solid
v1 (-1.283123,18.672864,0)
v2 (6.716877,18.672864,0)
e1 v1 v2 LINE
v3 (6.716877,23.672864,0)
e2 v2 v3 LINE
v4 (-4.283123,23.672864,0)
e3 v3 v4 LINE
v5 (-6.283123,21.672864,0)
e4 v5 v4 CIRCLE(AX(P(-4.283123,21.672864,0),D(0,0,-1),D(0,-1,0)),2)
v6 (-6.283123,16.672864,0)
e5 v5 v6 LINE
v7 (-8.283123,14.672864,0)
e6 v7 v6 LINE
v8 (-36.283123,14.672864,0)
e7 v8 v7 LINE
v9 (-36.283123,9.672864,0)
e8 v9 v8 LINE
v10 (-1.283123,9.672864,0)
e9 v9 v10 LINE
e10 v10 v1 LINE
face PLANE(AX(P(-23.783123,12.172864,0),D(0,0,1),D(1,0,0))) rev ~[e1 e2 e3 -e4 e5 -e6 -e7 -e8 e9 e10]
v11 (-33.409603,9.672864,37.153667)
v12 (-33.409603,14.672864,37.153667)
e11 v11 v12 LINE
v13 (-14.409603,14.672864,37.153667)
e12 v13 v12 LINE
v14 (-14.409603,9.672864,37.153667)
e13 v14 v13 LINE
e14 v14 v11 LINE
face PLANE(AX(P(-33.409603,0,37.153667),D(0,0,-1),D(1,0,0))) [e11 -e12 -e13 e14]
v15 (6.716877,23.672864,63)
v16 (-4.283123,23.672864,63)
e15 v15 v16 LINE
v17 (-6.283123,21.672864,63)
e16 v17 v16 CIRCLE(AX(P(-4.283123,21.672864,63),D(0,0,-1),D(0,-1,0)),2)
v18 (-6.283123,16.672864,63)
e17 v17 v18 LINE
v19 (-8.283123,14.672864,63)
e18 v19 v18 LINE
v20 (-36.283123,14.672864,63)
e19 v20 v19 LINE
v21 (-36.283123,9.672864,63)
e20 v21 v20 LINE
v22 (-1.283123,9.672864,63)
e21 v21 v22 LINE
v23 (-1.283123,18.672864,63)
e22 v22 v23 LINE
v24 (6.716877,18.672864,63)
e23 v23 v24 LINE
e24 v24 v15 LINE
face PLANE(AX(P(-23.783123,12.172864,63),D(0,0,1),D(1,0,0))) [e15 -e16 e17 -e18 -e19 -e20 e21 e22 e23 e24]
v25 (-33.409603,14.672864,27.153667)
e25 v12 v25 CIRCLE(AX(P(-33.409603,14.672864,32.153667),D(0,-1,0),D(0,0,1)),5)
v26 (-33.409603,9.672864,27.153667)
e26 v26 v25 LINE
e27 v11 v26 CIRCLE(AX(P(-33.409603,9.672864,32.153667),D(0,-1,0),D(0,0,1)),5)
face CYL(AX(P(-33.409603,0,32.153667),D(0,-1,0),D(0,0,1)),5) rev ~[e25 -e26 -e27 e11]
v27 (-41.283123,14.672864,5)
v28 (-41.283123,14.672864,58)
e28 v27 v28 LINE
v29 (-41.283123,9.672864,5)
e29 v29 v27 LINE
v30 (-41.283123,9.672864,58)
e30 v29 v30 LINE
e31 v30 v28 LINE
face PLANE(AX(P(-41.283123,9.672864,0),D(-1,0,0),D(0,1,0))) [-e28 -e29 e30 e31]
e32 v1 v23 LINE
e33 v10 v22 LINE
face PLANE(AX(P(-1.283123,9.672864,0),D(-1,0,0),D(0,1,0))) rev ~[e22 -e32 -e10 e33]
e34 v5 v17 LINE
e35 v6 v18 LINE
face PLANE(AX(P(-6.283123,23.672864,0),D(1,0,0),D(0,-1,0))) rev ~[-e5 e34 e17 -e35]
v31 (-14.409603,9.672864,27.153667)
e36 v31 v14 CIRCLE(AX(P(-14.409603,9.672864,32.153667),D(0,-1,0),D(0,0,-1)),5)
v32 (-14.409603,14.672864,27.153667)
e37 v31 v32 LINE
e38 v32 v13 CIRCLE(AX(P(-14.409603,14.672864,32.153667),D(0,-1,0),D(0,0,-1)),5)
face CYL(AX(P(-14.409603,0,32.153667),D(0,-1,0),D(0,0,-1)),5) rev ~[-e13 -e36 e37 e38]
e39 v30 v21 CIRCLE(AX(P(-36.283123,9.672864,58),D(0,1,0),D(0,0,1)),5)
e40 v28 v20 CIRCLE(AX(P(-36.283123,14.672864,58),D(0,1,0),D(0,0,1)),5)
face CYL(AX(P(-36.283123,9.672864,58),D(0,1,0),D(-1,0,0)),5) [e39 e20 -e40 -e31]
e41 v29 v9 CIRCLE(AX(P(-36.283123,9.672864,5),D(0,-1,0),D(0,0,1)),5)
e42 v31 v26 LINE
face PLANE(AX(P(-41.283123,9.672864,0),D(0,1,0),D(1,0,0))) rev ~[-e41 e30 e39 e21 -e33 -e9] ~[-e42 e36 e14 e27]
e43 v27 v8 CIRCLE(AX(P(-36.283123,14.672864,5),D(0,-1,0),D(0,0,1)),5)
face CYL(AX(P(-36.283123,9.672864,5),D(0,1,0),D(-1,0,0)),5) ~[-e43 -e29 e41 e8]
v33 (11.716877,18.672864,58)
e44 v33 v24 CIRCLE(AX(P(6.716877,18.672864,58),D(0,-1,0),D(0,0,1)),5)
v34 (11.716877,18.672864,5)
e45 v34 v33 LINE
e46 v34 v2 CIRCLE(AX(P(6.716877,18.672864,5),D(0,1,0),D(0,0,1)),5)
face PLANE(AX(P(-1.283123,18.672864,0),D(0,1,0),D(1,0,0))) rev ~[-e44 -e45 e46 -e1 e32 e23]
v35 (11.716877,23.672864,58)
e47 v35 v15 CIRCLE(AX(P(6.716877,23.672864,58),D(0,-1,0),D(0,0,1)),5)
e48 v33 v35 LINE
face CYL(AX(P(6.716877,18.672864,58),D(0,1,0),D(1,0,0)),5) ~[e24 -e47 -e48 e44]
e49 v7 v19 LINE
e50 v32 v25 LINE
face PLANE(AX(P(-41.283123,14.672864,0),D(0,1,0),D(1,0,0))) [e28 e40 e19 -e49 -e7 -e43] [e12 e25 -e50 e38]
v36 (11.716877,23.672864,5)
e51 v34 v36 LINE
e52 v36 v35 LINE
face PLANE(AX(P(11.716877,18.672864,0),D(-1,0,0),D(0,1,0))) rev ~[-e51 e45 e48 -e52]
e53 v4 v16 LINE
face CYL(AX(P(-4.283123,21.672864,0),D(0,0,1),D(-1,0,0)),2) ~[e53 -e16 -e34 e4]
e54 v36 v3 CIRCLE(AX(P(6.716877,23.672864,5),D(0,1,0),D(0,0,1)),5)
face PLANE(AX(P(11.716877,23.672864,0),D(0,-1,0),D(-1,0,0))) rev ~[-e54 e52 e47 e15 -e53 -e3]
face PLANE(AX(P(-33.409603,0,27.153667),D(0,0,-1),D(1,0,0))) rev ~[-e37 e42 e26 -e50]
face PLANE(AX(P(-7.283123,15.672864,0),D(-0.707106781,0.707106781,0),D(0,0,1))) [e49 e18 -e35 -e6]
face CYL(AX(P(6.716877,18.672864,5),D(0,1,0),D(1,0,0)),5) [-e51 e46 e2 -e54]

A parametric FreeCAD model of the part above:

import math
import FreeCAD as App
import Part
import Sketcher


def edges_at(feature, points):
    """Names of the edges that pass closest to the given points."""
    edges = feature.Shape.Edges
    near = lambda p: min(range(len(edges)), key=lambda i: edges[i].distToShape(Part.Vertex(*p))[0])
    return sorted({f"Edge{near(p) + 1}" for p in points})

doc = App.newDocument("Part")
params = doc.addObject("Spreadsheet::Sheet", "Params")
for row, (alias, value) in enumerate([
    ("sketch1_width", "40 mm"),
    ("sketch1_width2", "13 mm"),
    ("sketch1_width3", "18 mm"),
    ("sketch1_height", "5 mm"),
    ("sketch1_height2", "9 mm"),
    ("pad1_length", "63 mm"),
    ("fillet_radius", "5 mm"),
    ("sketch2_radius", "5 mm"),
    ("sketch2_width", "19 mm"),
    ("pocket1_length", "25 mm"),
    ("chamfer_size", "2 mm"),
    ("fillet2_radius", "2 mm"),
], start=1):
    params.set(f"A{row}", alias)
    params.set(f"B{row}", "=" + value)
    params.setAlias(f"B{row}", alias)

body = doc.addObject("PartDesign::Body", "Body")

sketch1 = doc.addObject("Sketcher::SketchObject", "Sketch")
body.addObject(sketch1)
sketch1.AttachmentSupport = (doc.XY_Plane, [""])
sketch1.MapMode = "FlatFace"
sketch1.addGeometry([
    Part.LineSegment(App.Vector(-41, 15, 0), App.Vector(-41, 10, 0)),
    Part.LineSegment(App.Vector(-41, 10, 0), App.Vector(-1, 10, 0)),
    Part.LineSegment(App.Vector(-1, 10, 0), App.Vector(-1, 19, 0)),
    Part.LineSegment(App.Vector(-1, 19, 0), App.Vector(12, 19, 0)),
    Part.LineSegment(App.Vector(12, 19, 0), App.Vector(12, 24, 0)),
    Part.LineSegment(App.Vector(12, 24, 0), App.Vector(-6, 24, 0)),
    Part.LineSegment(App.Vector(-6, 24, 0), App.Vector(-6, 15, 0)),
    Part.LineSegment(App.Vector(-6, 15, 0), App.Vector(-41, 15, 0)),
], False)
sketch1.addConstraint([
    Sketcher.Constraint("Coincident", 0, 2, 1, 1),
    Sketcher.Constraint("Coincident", 1, 2, 2, 1),
    Sketcher.Constraint("Coincident", 2, 2, 3, 1),
    Sketcher.Constraint("Coincident", 3, 2, 4, 1),
    Sketcher.Constraint("Coincident", 4, 2, 5, 1),
    Sketcher.Constraint("Coincident", 5, 2, 6, 1),
    Sketcher.Constraint("Coincident", 6, 2, 7, 1),
    Sketcher.Constraint("Coincident", 7, 2, 0, 1),
    Sketcher.Constraint("Vertical", 0),
    Sketcher.Constraint("Horizontal", 1),
    Sketcher.Constraint("Vertical", 2),
    Sketcher.Constraint("Horizontal", 3),
    Sketcher.Constraint("Vertical", 4),
    Sketcher.Constraint("Horizontal", 5),
    Sketcher.Constraint("Vertical", 6),
    Sketcher.Constraint("Horizontal", 7),
    Sketcher.Constraint("Equal", 0, 4),
    Sketcher.Constraint("DistanceX", 1, 1, 1, 2, 40.0),
    Sketcher.Constraint("DistanceX", 3, 1, 3, 2, 13.0),
    Sketcher.Constraint("DistanceX", 5, 2, 5, 1, 18.0),
    Sketcher.Constraint("DistanceY", 0, 2, 0, 1, 5.0),
    Sketcher.Constraint("DistanceY", 2, 1, 2, 2, 9.0),
    Sketcher.Constraint("DistanceX", 0, 2, -1, 1, 41.283123),
    Sketcher.Constraint("DistanceY", -1, 1, 0, 2, 9.672864),
])
sketch1.setExpression("Constraints[17]", "Params.sketch1_width")
sketch1.setExpression("Constraints[18]", "Params.sketch1_width2")
sketch1.setExpression("Constraints[19]", "Params.sketch1_width3")
sketch1.setExpression("Constraints[20]", "Params.sketch1_height")
sketch1.setExpression("Constraints[21]", "Params.sketch1_height2")
pad1 = doc.addObject("PartDesign::Pad", "Pad")
body.addObject(pad1)
pad1.Profile = sketch1
pad1.setExpression("Length", "Params.pad1_length")
doc.recompute()

fillet = doc.addObject("PartDesign::Fillet", "Fillet")
body.addObject(fillet)
fillet.Base = (pad1, edges_at(pad1, [
    (-41.283, 12.173, 63),
    (11.717, 21.173, 63),
    (-41.283, 12.173, 0),
    (11.717, 21.173, 0),
]))
fillet.setExpression("Radius", "Params.fillet_radius")

sketch2 = doc.addObject("Sketcher::SketchObject", "Sketch001")
body.addObject(sketch2)
sketch2.AttachmentSupport = (doc.XZ_Plane, [""])
sketch2.MapMode = "FlatFace"
sketch2.addGeometry([
    Part.LineSegment(App.Vector(-33, 27, 0), App.Vector(-14, 27, 0)),
    Part.ArcOfCircle(Part.Circle(App.Vector(-14, 32, 0), App.Vector(0, 0, 1), 5), math.radians(-90), math.radians(90)),
    Part.LineSegment(App.Vector(-14, 37, 0), App.Vector(-33, 37, 0)),
    Part.ArcOfCircle(Part.Circle(App.Vector(-33, 32, 0), App.Vector(0, 0, 1), 5), math.radians(90), math.radians(270)),
], False)
sketch2.addConstraint([
    Sketcher.Constraint("Tangent", 0, 2, 1, 1),
    Sketcher.Constraint("Tangent", 1, 2, 2, 1),
    Sketcher.Constraint("Tangent", 2, 2, 3, 1),
    Sketcher.Constraint("Tangent", 3, 2, 0, 1),
    Sketcher.Constraint("Horizontal", 0),
    Sketcher.Constraint("Horizontal", 2),
    Sketcher.Constraint("Radius", 1, 5.0),
    Sketcher.Constraint("DistanceX", 0, 1, 0, 2, 19.0),
    Sketcher.Constraint("DistanceX", 1, 3, -1, 1, 14.409603),
    Sketcher.Constraint("DistanceY", -1, 1, 1, 3, 32.153667),
])
sketch2.setExpression("Constraints[6]", "Params.sketch2_radius")
sketch2.setExpression("Constraints[7]", "Params.sketch2_width")
pocket1 = doc.addObject("PartDesign::Pocket", "Pocket")
body.addObject(pocket1)
pocket1.Profile = sketch2
pocket1.setExpression("Length", "Params.pocket1_length")
doc.recompute()

chamfer = doc.addObject("PartDesign::Chamfer", "Chamfer")
body.addObject(chamfer)
chamfer.Base = (pocket1, edges_at(pocket1, [(-6.283, 14.673, 31.5)]))
chamfer.setExpression("Size", "Params.chamfer_size")
doc.recompute()

fillet2 = doc.addObject("PartDesign::Fillet", "Fillet001")
body.addObject(fillet2)
fillet2.Base = (chamfer, edges_at(chamfer, [(-6.283, 23.673, 31.5)]))
fillet2.setExpression("Radius", "Params.fillet2_radius")

doc.recompute()
